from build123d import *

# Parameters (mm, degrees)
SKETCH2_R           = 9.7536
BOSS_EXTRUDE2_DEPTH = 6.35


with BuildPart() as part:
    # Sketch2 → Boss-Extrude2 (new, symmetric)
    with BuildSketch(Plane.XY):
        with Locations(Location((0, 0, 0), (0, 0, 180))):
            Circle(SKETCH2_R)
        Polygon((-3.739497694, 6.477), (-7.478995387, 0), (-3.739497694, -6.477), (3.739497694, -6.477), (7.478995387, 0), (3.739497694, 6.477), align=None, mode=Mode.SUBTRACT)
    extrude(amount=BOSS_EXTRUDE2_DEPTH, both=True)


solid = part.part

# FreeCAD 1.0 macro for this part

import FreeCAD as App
import Part
import Sketcher

V = App.Vector
Q = App.Units.Quantity


def add_polygon(sketch, points):
    """Adds a closed chain of lines whose ends are joined by coincident constraints."""
    first, n = sketch.GeometryCount, len(points)
    for a, b in zip(points, points[1:] + points[:1]):
        sketch.addGeometry(Part.LineSegment(App.Vector(*a, 0), App.Vector(*b, 0)), False)
    for i in range(n):
        sketch.addConstraint(Sketcher.Constraint("Coincident", first + i, 2, first + (i + 1) % n, 1))

doc = App.newDocument("Part")
params = doc.addObject("Spreadsheet::Sheet", "Params")
for row, (alias, value) in enumerate([
    ("sketch1_diameter", "0.768 in"),
    ("pad1_length", "0.5 in"),
], start=1):
    params.set(f"A{row}", alias)
    params.set(f"B{row}", "=" + value)
    params.setAlias(f"B{row}", alias)

body = doc.addObject("PartDesign::Body", "Body")

# Sketch on XY plane
sketch1 = doc.addObject("Sketcher::SketchObject", "Sketch")
body.addObject(sketch1)
sketch1.AttachmentSupport = (doc.XY_Plane, [""])
sketch1.MapMode = "FlatFace"
sketch1.addGeometry(Part.Circle(V(0, 0, 0), V(0, 0, 1), 10), False)  # 0
add_polygon(sketch1, [(-7, 0), (-4, 6), (4, 6), (7, 0), (4, -6), (-4, -6)])  # lines 1-6
sketch1.addConstraint([
    Sketcher.Constraint("Horizontal", 2),
    Sketcher.Constraint("Horizontal", 5),
    Sketcher.Constraint("Coincident", 0, 3, -1, 1),
    Sketcher.Constraint("Symmetric", 1, 2, 4, 2, -1, 1),
    Sketcher.Constraint("Symmetric", 3, 2, 6, 2, -1, 1),
    Sketcher.Constraint("PointOnObject", 3, 2, -1),
    Sketcher.Constraint("Parallel", 3, 6),
    Sketcher.Constraint("Vertical", 2, 2, 4, 2),
    Sketcher.Constraint("Diameter", 0, Q("0.768 in")),
    Sketcher.Constraint("Angle", 1, Q("60 deg")),
    Sketcher.Constraint("DistanceY", 4, 2, 2, 2, Q("0.51 in")),
    Sketcher.Constraint("DistanceX", 2, 1, 2, 2, 7.478995),
])
sketch1.setExpression("Constraints[14]", "Params.sketch1_diameter")
pad1 = doc.addObject("PartDesign::Pad", "Pad")
body.addObject(pad1)
pad1.Profile = sketch1
pad1.setExpression("Length", "Params.pad1_length")
pad1.Midplane = True

doc.recompute()
